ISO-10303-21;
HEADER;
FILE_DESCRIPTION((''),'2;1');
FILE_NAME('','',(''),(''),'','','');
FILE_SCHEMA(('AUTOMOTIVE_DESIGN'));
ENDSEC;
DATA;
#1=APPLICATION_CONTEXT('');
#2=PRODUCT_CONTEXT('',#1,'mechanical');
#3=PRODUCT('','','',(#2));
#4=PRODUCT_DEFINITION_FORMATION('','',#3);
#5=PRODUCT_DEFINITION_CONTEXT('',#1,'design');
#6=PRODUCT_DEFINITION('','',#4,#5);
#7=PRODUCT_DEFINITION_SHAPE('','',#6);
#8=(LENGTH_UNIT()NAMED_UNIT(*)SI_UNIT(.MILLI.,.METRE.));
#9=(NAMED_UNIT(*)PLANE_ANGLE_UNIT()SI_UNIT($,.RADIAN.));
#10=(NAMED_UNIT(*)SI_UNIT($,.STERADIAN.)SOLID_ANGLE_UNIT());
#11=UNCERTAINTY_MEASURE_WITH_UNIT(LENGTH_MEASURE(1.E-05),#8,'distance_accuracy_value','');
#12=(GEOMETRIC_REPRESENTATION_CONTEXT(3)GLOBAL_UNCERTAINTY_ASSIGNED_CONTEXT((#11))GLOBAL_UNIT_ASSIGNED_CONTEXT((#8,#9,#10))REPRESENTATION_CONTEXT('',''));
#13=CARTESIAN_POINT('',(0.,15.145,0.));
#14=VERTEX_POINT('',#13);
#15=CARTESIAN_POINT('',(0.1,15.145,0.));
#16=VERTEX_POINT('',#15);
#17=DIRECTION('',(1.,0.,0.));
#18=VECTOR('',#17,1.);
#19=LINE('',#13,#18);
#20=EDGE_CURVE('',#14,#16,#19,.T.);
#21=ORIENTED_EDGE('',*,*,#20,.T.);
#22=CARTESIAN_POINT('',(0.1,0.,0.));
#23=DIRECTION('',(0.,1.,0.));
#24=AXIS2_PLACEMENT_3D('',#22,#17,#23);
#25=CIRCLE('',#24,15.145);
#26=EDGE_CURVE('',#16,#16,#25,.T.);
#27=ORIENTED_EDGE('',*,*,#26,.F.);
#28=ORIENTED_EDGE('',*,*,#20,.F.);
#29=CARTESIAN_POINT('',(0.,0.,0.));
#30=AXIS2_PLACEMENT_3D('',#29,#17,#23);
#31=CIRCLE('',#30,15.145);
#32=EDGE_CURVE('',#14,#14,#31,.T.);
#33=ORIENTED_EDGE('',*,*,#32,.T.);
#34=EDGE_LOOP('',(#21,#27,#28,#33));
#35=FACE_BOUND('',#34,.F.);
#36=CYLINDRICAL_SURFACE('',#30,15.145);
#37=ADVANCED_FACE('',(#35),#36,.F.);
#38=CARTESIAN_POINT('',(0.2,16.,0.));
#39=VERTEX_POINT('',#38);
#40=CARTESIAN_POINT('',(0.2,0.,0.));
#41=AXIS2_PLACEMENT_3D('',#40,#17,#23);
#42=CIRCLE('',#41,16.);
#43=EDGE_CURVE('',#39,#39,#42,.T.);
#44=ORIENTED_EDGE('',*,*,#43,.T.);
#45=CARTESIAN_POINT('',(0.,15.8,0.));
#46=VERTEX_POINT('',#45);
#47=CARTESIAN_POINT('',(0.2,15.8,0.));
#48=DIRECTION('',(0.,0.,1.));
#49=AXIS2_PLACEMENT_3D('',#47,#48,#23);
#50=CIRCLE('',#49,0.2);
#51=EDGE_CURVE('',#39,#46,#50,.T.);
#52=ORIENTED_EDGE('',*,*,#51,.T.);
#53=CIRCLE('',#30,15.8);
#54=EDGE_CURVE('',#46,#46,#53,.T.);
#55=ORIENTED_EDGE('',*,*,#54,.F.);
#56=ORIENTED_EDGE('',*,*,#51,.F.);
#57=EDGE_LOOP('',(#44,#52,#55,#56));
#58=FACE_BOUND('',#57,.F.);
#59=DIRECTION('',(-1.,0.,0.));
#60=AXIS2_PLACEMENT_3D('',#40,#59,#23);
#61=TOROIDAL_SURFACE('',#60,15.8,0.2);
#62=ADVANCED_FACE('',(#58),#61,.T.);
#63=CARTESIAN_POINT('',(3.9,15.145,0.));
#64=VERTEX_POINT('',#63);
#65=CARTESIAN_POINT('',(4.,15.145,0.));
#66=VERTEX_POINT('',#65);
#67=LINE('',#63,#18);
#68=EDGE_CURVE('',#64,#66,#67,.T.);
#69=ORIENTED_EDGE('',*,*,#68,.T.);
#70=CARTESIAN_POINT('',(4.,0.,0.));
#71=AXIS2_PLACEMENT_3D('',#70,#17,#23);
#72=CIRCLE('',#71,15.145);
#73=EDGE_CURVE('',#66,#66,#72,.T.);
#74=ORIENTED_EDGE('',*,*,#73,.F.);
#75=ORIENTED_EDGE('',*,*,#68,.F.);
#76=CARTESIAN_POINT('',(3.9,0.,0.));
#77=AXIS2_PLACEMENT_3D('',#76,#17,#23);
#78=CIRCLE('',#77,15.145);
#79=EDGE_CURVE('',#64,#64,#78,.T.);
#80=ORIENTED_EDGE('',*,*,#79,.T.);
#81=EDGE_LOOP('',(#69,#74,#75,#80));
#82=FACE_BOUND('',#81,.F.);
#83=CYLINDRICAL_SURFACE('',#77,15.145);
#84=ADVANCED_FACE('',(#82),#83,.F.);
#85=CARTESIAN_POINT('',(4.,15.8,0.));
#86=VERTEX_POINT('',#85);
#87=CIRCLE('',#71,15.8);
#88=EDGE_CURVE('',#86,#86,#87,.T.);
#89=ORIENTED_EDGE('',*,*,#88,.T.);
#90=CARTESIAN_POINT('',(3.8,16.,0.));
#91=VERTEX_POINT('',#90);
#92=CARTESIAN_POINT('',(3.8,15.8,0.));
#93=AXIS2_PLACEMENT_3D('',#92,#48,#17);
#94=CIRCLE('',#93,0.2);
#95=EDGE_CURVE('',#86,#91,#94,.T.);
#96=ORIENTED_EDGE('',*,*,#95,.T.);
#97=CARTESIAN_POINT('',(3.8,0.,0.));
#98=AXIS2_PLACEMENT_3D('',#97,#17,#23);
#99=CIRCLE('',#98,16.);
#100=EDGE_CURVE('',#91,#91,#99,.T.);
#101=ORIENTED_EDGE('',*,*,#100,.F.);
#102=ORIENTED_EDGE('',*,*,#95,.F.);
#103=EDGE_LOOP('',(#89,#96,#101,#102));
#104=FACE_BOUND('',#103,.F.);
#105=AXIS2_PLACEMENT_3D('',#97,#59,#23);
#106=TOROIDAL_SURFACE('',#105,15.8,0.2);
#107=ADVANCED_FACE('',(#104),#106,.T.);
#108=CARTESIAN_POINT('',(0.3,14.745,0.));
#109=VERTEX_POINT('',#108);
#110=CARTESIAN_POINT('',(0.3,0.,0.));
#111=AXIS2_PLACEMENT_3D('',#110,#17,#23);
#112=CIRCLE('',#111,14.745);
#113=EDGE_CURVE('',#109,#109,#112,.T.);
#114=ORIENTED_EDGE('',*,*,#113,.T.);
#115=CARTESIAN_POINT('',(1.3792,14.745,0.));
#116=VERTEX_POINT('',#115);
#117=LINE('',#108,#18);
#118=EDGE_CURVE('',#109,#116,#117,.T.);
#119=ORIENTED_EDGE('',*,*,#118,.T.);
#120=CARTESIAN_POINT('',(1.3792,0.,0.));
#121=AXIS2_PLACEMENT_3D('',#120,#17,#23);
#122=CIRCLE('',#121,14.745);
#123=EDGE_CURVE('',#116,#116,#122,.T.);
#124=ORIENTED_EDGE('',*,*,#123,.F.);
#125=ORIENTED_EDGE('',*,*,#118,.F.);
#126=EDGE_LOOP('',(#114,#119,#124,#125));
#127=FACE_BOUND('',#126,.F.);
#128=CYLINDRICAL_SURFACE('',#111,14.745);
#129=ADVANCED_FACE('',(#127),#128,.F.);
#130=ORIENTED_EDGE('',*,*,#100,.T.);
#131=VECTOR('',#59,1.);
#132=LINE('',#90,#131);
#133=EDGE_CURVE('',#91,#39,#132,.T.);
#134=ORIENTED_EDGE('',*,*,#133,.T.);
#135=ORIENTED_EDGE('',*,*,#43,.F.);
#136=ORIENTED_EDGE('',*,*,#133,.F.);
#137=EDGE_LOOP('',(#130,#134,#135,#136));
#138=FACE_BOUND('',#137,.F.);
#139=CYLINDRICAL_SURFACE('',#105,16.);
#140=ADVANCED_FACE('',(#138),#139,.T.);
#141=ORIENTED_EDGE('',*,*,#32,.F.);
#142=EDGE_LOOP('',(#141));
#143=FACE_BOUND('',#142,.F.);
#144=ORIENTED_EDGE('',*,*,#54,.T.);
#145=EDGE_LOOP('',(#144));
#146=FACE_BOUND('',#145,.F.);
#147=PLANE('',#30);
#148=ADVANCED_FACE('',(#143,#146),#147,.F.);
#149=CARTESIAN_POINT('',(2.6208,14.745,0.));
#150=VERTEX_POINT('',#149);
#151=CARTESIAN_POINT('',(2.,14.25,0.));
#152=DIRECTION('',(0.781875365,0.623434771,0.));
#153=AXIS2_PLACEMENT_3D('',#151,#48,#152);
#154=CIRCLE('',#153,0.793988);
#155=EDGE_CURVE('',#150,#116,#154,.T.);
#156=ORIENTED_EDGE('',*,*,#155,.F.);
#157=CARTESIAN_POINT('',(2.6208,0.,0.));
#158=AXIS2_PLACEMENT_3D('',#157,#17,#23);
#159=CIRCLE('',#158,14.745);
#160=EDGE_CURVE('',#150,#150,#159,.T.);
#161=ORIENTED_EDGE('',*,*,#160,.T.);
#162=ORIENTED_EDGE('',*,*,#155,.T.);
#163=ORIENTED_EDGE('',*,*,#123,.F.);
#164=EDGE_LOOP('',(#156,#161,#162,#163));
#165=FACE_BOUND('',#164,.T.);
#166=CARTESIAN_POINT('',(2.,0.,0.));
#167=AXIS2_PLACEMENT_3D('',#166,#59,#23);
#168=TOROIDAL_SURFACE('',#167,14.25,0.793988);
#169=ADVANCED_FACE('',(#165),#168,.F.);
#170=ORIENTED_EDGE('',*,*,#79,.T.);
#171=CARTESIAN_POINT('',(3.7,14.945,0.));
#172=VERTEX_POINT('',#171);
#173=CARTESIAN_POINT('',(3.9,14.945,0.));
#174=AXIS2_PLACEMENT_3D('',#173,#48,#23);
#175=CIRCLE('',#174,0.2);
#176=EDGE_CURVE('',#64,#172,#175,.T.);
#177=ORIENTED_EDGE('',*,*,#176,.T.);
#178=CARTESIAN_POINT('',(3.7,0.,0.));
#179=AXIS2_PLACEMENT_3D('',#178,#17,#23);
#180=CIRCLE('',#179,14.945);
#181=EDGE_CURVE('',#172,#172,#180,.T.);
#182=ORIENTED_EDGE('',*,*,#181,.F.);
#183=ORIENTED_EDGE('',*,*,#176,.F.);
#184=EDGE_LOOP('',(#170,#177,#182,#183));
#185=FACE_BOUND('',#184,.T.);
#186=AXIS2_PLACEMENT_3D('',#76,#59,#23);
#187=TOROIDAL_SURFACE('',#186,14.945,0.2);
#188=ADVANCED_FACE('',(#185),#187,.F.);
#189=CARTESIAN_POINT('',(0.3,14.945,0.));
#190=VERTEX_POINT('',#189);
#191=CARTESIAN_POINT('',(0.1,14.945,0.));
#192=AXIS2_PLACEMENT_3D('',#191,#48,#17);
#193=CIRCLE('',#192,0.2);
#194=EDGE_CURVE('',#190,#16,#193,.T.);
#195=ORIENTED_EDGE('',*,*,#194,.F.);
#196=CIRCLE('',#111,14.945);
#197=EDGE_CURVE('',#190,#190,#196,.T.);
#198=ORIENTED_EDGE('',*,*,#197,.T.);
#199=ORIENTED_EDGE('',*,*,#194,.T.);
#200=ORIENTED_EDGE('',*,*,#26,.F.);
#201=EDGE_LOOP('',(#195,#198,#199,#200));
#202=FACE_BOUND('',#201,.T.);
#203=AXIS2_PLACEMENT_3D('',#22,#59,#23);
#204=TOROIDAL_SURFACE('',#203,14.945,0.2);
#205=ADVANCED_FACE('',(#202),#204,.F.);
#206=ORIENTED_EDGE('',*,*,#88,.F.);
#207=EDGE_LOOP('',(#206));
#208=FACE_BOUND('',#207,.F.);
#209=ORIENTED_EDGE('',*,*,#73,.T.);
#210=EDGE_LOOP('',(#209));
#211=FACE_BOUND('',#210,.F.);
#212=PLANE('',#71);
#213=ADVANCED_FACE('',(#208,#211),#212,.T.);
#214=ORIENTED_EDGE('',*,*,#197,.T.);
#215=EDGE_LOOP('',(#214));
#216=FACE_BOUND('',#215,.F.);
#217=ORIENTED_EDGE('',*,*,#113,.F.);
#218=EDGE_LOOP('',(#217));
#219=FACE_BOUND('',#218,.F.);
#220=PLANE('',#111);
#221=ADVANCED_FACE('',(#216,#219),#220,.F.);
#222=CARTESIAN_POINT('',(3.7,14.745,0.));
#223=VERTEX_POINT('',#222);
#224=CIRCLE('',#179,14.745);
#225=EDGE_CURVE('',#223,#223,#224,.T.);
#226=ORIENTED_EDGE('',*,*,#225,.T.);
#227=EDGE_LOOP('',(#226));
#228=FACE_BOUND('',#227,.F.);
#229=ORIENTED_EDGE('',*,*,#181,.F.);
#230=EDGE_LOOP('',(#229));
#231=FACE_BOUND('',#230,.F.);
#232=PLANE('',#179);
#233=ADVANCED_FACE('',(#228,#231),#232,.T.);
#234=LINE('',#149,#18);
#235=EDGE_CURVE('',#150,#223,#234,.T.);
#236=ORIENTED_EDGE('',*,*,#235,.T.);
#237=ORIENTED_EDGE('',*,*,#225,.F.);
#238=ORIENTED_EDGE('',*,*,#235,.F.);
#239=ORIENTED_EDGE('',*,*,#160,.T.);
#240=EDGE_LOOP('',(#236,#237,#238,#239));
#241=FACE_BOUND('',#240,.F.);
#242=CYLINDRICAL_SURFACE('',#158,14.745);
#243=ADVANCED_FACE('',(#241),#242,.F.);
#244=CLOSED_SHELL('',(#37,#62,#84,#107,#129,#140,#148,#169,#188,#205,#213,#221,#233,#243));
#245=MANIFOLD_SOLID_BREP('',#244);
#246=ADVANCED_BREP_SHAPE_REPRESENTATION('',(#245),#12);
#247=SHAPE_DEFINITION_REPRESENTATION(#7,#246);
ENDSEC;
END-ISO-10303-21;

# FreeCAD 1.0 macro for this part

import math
import FreeCAD as App
import Part
import Sketcher
from FreeCAD import Vector
Q = App.Units.Quantity

doc = App.newDocument("Part")
body = doc.addObject("PartDesign::Body", "Body")

# Sketch on XY plane
sketch1 = body.newObject("Sketcher::SketchObject", "Sketch")
sketch1.AttachmentSupport = (doc.getObject("XY_Plane"), [""])
sketch1.MapMode = "FlatFace"
sketch1.addGeometry([
    Part.ArcOfCircle(Part.Circle(Vector(0.2, 15.8, 0), Vector(0, 0, 1), 0.2), math.radians(90), math.radians(180)),  # 0
    Part.LineSegment(Vector(0, 15.8, 0), Vector(0, 15.14, 0)),  # 1
    Part.LineSegment(Vector(0, 15.14, 0), Vector(0.1, 15.14, 0)),  # 2
    Part.ArcOfCircle(Part.Circle(Vector(0.1, 14.95, 0), Vector(0, 0, 1), 0.2), math.radians(0), math.radians(90)),  # 3
    Part.LineSegment(Vector(0.3, 14.95, 0), Vector(0.3, 14.74, 0)),  # 4
    Part.LineSegment(Vector(0.3, 14.74, 0), Vector(1.38, 14.74, 0)),  # 5
    Part.ArcOfCircle(Part.Circle(Vector(2, 14.25, 0), Vector(0, 0, 1), 0.79), math.radians(39), math.radians(141)),  # 6
    Part.LineSegment(Vector(2.62, 14.74, 0), Vector(3.7, 14.74, 0)),  # 7
    Part.LineSegment(Vector(3.7, 14.74, 0), Vector(3.7, 14.95, 0)),  # 8
    Part.ArcOfCircle(Part.Circle(Vector(3.9, 14.95, 0), Vector(0, 0, 1), 0.2), math.radians(90), math.radians(180)),  # 9
    Part.LineSegment(Vector(3.9, 15.14, 0), Vector(4, 15.14, 0)),  # 10
    Part.LineSegment(Vector(4, 15.14, 0), Vector(4, 15.8, 0)),  # 11
    Part.ArcOfCircle(Part.Circle(Vector(3.8, 15.8, 0), Vector(0, 0, 1), 0.2), math.radians(0), math.radians(90)),  # 12
    Part.LineSegment(Vector(3.8, 16, 0), Vector(0.2, 16, 0)),  # 13
], False)
sketch1.addConstraint([
    Sketcher.Constraint("Tangent", 0, 2, 1, 1),
    Sketcher.Constraint("Coincident", 1, 2, 2, 1),
    Sketcher.Constraint("Tangent", 2, 2, 3, 2),
    Sketcher.Constraint("Tangent", 3, 1, 4, 1),
    Sketcher.Constraint("Coincident", 4, 2, 5, 1),
    Sketcher.Constraint("Coincident", 5, 2, 6, 2),
    Sketcher.Constraint("Coincident", 6, 1, 7, 1),
    Sketcher.Constraint("Coincident", 7, 2, 8, 1),
    Sketcher.Constraint("Tangent", 8, 2, 9, 2),
    Sketcher.Constraint("Tangent", 9, 1, 10, 1),
    Sketcher.Constraint("Coincident", 10, 2, 11, 1),
    Sketcher.Constraint("Tangent", 11, 2, 12, 1),
    Sketcher.Constraint("Tangent", 12, 2, 13, 1),
    Sketcher.Constraint("Tangent", 13, 2, 0, 1),
    Sketcher.Constraint("Vertical", 1),
    Sketcher.Constraint("Horizontal", 2),
    Sketcher.Constraint("Vertical", 4),
    Sketcher.Constraint("Horizontal", 5),
    Sketcher.Constraint("Horizontal", 7),
    Sketcher.Constraint("Vertical", 8),
    Sketcher.Constraint("Horizontal", 10),
    Sketcher.Constraint("Vertical", 11),
    Sketcher.Constraint("Horizontal", 13),
    Sketcher.Constraint("Equal", 0, 3),
    Sketcher.Constraint("Equal", 3, 9),
    Sketcher.Constraint("Equal", 9, 12),
    Sketcher.Constraint("PointOnObject", 0, 2, -2),
    Sketcher.Constraint("Horizontal", 3, 3, 9, 3),
    Sketcher.Constraint("Horizontal", 5, 2, 6, 1),
    Sketcher.Constraint("Equal", 5, 7),
    Sketcher.Constraint("Equal", 2, 10),
    Sketcher.Constraint("Radius", 0, Q("0.2 mm")),
    Sketcher.Constraint("DistanceX", 2, 1, 2, 2, Q("0.1 mm")),
    Sketcher.Constraint("DistanceX", 13, 2, 13, 1, Q("3.6 mm")),
    Sketcher.Constraint("DistanceY", 4, 2, 4, 1, Q("0.2 mm")),
    Sketcher.Constraint("DistanceY", -1, 1, 12, 2, Q("16 mm")),
    Sketcher.Constraint("Radius", 6, Q("0.794 mm")),
    Sketcher.Constraint("DistanceY", 1, 2, 1, 1, Q("0.655 mm")),
    Sketcher.Constraint("DistanceY", -1, 1, 6, 3, Q("14.25 mm")),
])
revolution = body.newObject("PartDesign::Revolution", "Revolution")
revolution.Profile = sketch1
revolution.ReferenceAxis = (sketch1, ["H_Axis"])
revolution.Angle = 360

doc.recompute()
